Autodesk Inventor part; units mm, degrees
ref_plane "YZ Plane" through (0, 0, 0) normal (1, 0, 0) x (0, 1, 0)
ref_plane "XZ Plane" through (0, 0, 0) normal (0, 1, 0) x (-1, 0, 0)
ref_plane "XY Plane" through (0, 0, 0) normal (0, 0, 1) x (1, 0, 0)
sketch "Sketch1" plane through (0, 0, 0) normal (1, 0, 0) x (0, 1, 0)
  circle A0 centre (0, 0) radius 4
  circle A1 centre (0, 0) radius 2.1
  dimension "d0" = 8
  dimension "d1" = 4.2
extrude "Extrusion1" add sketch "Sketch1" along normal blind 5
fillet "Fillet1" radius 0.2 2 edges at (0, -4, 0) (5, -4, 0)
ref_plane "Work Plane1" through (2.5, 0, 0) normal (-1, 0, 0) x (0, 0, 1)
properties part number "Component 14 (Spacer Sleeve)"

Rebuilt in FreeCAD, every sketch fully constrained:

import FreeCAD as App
import Part
import Sketcher

V = App.Vector
Q = App.Units.Quantity


def edges_at(feature, points):
    """Names of the edges that pass closest to the given points."""
    edges = feature.Shape.Edges
    near = lambda p: min(range(len(edges)), key=lambda i: edges[i].distToShape(Part.Vertex(*p))[0])
    return sorted({f"Edge{near(p) + 1}" for p in points})

doc = App.newDocument("Part")
body = doc.addObject("PartDesign::Body", "Body")

sketch1 = doc.addObject("Sketcher::SketchObject", "Sketch")
body.addObject(sketch1)
sketch1.AttachmentSupport = (doc.YZ_Plane, [""])
sketch1.MapMode = "FlatFace"
sketch1.addGeometry(Part.Circle(V(0, 0, 0), V(0, 0, 1), 4), False)
sketch1.addGeometry(Part.Circle(V(0, 0, 0), V(0, 0, 1), 2.1), False)
sketch1.addConstraint(Sketcher.Constraint("Coincident", 0, 3, -1, 1))
sketch1.addConstraint(Sketcher.Constraint("Coincident", 1, 3, -1, 1))
sketch1.addConstraint(Sketcher.Constraint("Diameter", 0, Q("8 mm")))
sketch1.addConstraint(Sketcher.Constraint("Diameter", 1, Q("4.2 mm")))
pad1 = doc.addObject("PartDesign::Pad", "Pad")
body.addObject(pad1)
pad1.Profile = sketch1
pad1.Length = 5
doc.recompute()

fillet = doc.addObject("PartDesign::Fillet", "Fillet")
body.addObject(fillet)
fillet.Base = (pad1, edges_at(pad1, [(0, -4, 0), (5, -4, 0)]))
fillet.Radius = 0.2

doc.recompute()
